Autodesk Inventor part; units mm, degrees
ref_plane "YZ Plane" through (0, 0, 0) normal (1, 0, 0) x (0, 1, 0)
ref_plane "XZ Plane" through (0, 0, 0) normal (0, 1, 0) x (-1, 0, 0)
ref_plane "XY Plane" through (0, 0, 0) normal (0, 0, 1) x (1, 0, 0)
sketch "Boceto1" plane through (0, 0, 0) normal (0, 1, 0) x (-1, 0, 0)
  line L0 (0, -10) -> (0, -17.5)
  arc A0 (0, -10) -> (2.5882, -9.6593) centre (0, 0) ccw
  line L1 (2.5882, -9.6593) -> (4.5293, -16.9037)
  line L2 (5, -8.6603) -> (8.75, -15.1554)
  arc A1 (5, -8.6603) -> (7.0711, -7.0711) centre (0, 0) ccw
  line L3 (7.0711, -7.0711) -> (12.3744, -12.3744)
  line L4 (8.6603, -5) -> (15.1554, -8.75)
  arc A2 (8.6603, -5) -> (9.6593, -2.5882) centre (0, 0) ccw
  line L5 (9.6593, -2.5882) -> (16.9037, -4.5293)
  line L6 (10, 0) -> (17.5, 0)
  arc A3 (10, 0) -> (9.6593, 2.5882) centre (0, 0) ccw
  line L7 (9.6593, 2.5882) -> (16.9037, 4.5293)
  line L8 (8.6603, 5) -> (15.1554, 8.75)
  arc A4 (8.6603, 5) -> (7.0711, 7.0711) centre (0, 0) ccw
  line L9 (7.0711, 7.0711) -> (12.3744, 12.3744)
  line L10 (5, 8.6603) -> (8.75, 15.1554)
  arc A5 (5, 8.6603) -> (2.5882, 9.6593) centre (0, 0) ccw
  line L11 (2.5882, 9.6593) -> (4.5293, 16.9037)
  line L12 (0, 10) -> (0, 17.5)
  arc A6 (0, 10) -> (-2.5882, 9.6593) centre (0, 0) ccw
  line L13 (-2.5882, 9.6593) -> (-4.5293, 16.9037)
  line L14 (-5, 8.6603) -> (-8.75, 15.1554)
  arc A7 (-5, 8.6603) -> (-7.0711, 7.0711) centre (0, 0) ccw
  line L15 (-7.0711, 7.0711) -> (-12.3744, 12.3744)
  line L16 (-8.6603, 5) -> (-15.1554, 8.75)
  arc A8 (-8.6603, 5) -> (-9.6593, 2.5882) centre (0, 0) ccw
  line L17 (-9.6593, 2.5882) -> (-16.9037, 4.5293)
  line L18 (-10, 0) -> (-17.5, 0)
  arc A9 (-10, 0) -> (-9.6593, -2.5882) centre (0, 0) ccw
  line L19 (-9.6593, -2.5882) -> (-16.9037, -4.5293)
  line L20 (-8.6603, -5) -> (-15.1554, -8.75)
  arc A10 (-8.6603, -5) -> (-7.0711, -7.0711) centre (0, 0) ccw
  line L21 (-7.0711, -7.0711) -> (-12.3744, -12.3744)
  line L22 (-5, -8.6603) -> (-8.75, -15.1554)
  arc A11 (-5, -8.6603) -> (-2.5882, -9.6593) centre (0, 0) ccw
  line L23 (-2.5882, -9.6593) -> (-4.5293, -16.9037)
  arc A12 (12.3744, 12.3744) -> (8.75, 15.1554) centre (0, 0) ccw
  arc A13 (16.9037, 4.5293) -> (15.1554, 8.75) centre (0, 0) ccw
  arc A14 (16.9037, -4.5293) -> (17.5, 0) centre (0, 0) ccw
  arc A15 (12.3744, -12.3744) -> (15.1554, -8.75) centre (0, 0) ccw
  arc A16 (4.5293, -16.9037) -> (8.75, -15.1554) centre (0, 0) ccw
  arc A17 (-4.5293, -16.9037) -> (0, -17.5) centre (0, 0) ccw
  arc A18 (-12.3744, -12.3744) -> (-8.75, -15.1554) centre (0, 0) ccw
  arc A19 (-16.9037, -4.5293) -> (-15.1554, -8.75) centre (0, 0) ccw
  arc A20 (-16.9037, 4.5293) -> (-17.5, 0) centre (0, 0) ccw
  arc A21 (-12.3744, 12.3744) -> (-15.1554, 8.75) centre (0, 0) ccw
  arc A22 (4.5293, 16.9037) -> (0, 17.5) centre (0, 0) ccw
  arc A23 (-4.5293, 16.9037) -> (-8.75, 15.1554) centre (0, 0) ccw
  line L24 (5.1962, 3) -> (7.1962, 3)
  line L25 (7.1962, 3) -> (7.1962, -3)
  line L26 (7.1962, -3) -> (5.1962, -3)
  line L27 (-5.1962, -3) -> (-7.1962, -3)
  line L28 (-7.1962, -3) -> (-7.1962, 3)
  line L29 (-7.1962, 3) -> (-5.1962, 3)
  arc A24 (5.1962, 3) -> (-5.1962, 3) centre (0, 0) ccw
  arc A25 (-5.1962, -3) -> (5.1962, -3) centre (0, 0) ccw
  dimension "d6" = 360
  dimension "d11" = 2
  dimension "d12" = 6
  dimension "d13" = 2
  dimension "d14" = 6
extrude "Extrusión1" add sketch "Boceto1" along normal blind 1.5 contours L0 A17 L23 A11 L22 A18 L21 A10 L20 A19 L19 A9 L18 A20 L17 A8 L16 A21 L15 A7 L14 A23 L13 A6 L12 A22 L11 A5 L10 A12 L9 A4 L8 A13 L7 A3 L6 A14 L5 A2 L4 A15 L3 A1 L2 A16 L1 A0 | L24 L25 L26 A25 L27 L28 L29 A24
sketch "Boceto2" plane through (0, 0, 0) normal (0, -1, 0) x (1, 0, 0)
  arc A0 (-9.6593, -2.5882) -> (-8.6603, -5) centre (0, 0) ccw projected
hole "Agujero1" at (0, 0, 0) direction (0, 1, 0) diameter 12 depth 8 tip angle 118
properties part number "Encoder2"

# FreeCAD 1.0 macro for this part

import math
import FreeCAD as App
import Part
import Sketcher

V = App.Vector

doc = App.newDocument("Part")
body = doc.addObject("PartDesign::Body", "Body")

# Sketch on XZ plane
sketch1 = doc.addObject("Sketcher::SketchObject", "Sketch")
body.addObject(sketch1)
sketch1.AttachmentSupport = (doc.XZ_Plane, [""])
sketch1.MapMode = "FlatFace"
sketch1.addGeometry([
    Part.LineSegment(V(0, -17.5, 0), V(0, -10, 0)),  # 0
    Part.ArcOfCircle(Part.Circle(V(0.000164, 0.002501, 0), V(0, 0, 1), 10.002501), math.radians(-104.99719), math.radians(-90.000939)),  # 1
    Part.LineSegment(V(-2.5882, -9.6593, 0), V(-4.5293, -16.9037, 0)),  # 2
    Part.ArcOfCircle(Part.Circle(V(-0.000529, -0.001558, 0), V(0, 0, 1), 17.498348), math.radians(-120.001124), math.radians(-104.999544)),  # 3
    Part.LineSegment(V(-8.75, -15.1554, 0), V(-5, -8.6603, 0)),  # 4
    Part.ArcOfCircle(Part.Circle(V(0, 0, 0), V(0, 0, 1), 10.00004), math.radians(-135), math.radians(-119.999868)),  # 5
    Part.LineSegment(V(-7.0711, -7.0711, 0), V(-12.3744, -12.3744, 0)),  # 6
    Part.ArcOfCircle(Part.Circle(V(-0.00365, -0.003201, 0), V(0, 0, 1), 17.4952), math.radians(-150.003028), math.radians(-134.99896)),  # 7
    Part.LineSegment(V(-15.1554, -8.75, 0), V(-8.6603, -5, 0)),  # 8
    Part.ArcOfCircle(Part.Circle(V(0, 0, 0), V(0, 0, 1), 10.00004), math.radians(-165.000009), math.radians(-150.000132)),  # 9
    Part.LineSegment(V(-9.6593, -2.5882, 0), V(-16.9037, -4.5293, 0)),  # 10
    Part.ArcOfCircle(Part.Circle(V(0, 0, 0), V(0, 0, 1), 17.500044), math.radians(180), math.radians(194.999896)),  # 11
    Part.LineSegment(V(-17.5, 0, 0), V(-10, 0, 0)),  # 12
    Part.ArcOfCircle(Part.Circle(V(0.002501, -0.000164, 0), V(0, 0, 1), 10.002501), math.radians(165.00281), math.radians(179.999061)),  # 13
    Part.LineSegment(V(-9.6593, 2.5882, 0), V(-16.9037, 4.5293, 0)),  # 14
    Part.ArcOfCircle(Part.Circle(V(-0.001558, 0.000529, 0), V(0, 0, 1), 17.498348), math.radians(149.998876), math.radians(165.000456)),  # 15
    Part.LineSegment(V(-15.1554, 8.75, 0), V(-8.6603, 5, 0)),  # 16
    Part.ArcOfCircle(Part.Circle(V(0, 0, 0), V(0, 0, 1), 10.00004), math.radians(135), math.radians(150.000132)),  # 17
    Part.LineSegment(V(-7.0711, 7.0711, 0), V(-12.3744, 12.3744, 0)),  # 18
    Part.ArcOfCircle(Part.Circle(V(-0.003201, 0.00365, 0), V(0, 0, 1), 17.4952), math.radians(119.996972), math.radians(135.00104)),  # 19
    Part.LineSegment(V(-8.75, 15.1554, 0), V(-5, 8.6603, 0)),  # 20
    Part.ArcOfCircle(Part.Circle(V(0, 0, 0), V(0, 0, 1), 10.00004), math.radians(104.999991), math.radians(119.999868)),  # 21
    Part.LineSegment(V(-2.5882, 9.6593, 0), V(-4.5293, 16.9037, 0)),  # 22
    Part.ArcOfCircle(Part.Circle(V(0, 0, 0), V(0, 0, 1), 17.500044), math.radians(90), math.radians(104.999896)),  # 23
    Part.LineSegment(V(0, 17.5, 0), V(0, 10, 0)),  # 24
    Part.ArcOfCircle(Part.Circle(V(-0.000164, -0.002501, 0), V(0, 0, 1), 10.002501), math.radians(75.00281), math.radians(89.999061)),  # 25
    Part.LineSegment(V(2.5882, 9.6593, 0), V(4.5293, 16.9037, 0)),  # 26
    Part.ArcOfCircle(Part.Circle(V(0.000529, 0.001558, 0), V(0, 0, 1), 17.498348), math.radians(59.998876), math.radians(75.000456)),  # 27
    Part.LineSegment(V(8.75, 15.1554, 0), V(5, 8.6603, 0)),  # 28
    Part.ArcOfCircle(Part.Circle(V(0, 0, 0), V(0, 0, 1), 10.00004), math.radians(45), math.radians(60.000132)),  # 29
    Part.LineSegment(V(7.0711, 7.0711, 0), V(12.3744, 12.3744, 0)),  # 30
    Part.ArcOfCircle(Part.Circle(V(0.00365, 0.003201, 0), V(0, 0, 1), 17.4952), math.radians(29.996972), math.radians(45.00104)),  # 31
    Part.LineSegment(V(15.1554, 8.75, 0), V(8.6603, 5, 0)),  # 32
    Part.ArcOfCircle(Part.Circle(V(0, 0, 0), V(0, 0, 1), 10.00004), math.radians(14.999991), math.radians(29.999868)),  # 33
    Part.LineSegment(V(9.6593, 2.5882, 0), V(16.9037, 4.5293, 0)),  # 34
    Part.ArcOfCircle(Part.Circle(V(0, 0, 0), V(0, 0, 1), 17.500044), math.radians(0), math.radians(14.999896)),  # 35
    Part.LineSegment(V(17.5, 0, 0), V(10, 0, 0)),  # 36
    Part.ArcOfCircle(Part.Circle(V(-0.002501, 0.000164, 0), V(0, 0, 1), 10.002501), math.radians(-14.99719), math.radians(-0.000939)),  # 37
    Part.LineSegment(V(9.6593, -2.5882, 0), V(16.9037, -4.5293, 0)),  # 38
    Part.ArcOfCircle(Part.Circle(V(0.001558, -0.000529, 0), V(0, 0, 1), 17.498348), math.radians(-30.001124), math.radians(-14.999544)),  # 39
    Part.LineSegment(V(15.1554, -8.75, 0), V(8.6603, -5, 0)),  # 40
    Part.ArcOfCircle(Part.Circle(V(0, 0, 0), V(0, 0, 1), 10.00004), math.radians(-45), math.radians(-29.999868)),  # 41
    Part.LineSegment(V(7.0711, -7.0711, 0), V(12.3744, -12.3744, 0)),  # 42
    Part.ArcOfCircle(Part.Circle(V(0.003201, -0.00365, 0), V(0, 0, 1), 17.4952), math.radians(-60.003028), math.radians(-44.99896)),  # 43
    Part.LineSegment(V(8.75, -15.1554, 0), V(5, -8.6603, 0)),  # 44
    Part.ArcOfCircle(Part.Circle(V(0, 0, 0), V(0, 0, 1), 10.00004), math.radians(-75.000009), math.radians(-60.000132)),  # 45
    Part.LineSegment(V(2.5882, -9.6593, 0), V(4.5293, -16.9037, 0)),  # 46
    Part.ArcOfCircle(Part.Circle(V(0, 0, 0), V(0, 0, 1), 17.500044), math.radians(-90), math.radians(-75.000104)),  # 47
], False)
sketch1.addConstraint([
    Sketcher.Constraint("Coincident", 0, 2, 1, 2),
    Sketcher.Constraint("Coincident", 1, 1, 2, 1),
    Sketcher.Constraint("Coincident", 2, 2, 3, 2),
    Sketcher.Constraint("Coincident", 3, 1, 4, 1),
    Sketcher.Constraint("Coincident", 4, 2, 5, 2),
    Sketcher.Constraint("Coincident", 5, 1, 6, 1),
    Sketcher.Constraint("Coincident", 6, 2, 7, 2),
    Sketcher.Constraint("Coincident", 7, 1, 8, 1),
    Sketcher.Constraint("Coincident", 8, 2, 9, 2),
    Sketcher.Constraint("Coincident", 9, 1, 10, 1),
    Sketcher.Constraint("Coincident", 10, 2, 11, 2),
    Sketcher.Constraint("Coincident", 11, 1, 12, 1),
    Sketcher.Constraint("Coincident", 12, 2, 13, 2),
    Sketcher.Constraint("Coincident", 13, 1, 14, 1),
    Sketcher.Constraint("Coincident", 14, 2, 15, 2),
    Sketcher.Constraint("Coincident", 15, 1, 16, 1),
    Sketcher.Constraint("Coincident", 16, 2, 17, 2),
    Sketcher.Constraint("Coincident", 17, 1, 18, 1),
    Sketcher.Constraint("Coincident", 18, 2, 19, 2),
    Sketcher.Constraint("Coincident", 19, 1, 20, 1),
    Sketcher.Constraint("Coincident", 20, 2, 21, 2),
    Sketcher.Constraint("Coincident", 21, 1, 22, 1),
    Sketcher.Constraint("Coincident", 22, 2, 23, 2),
    Sketcher.Constraint("Coincident", 23, 1, 24, 1),
    Sketcher.Constraint("Coincident", 24, 2, 25, 2),
    Sketcher.Constraint("Coincident", 25, 1, 26, 1),
    Sketcher.Constraint("Coincident", 26, 2, 27, 2),
    Sketcher.Constraint("Coincident", 27, 1, 28, 1),
    Sketcher.Constraint("Coincident", 28, 2, 29, 2),
    Sketcher.Constraint("Coincident", 29, 1, 30, 1),
    Sketcher.Constraint("Coincident", 30, 2, 31, 2),
    Sketcher.Constraint("Coincident", 31, 1, 32, 1),
    Sketcher.Constraint("Coincident", 32, 2, 33, 2),
    Sketcher.Constraint("Coincident", 33, 1, 34, 1),
    Sketcher.Constraint("Coincident", 34, 2, 35, 2),
    Sketcher.Constraint("Coincident", 35, 1, 36, 1),
    Sketcher.Constraint("Coincident", 36, 2, 37, 2),
    Sketcher.Constraint("Coincident", 37, 1, 38, 1),
    Sketcher.Constraint("Coincident", 38, 2, 39, 2),
    Sketcher.Constraint("Coincident", 39, 1, 40, 1),
    Sketcher.Constraint("Coincident", 40, 2, 41, 2),
    Sketcher.Constraint("Coincident", 41, 1, 42, 1),
    Sketcher.Constraint("Coincident", 42, 2, 43, 2),
    Sketcher.Constraint("Coincident", 43, 1, 44, 1),
    Sketcher.Constraint("Coincident", 44, 2, 45, 2),
    Sketcher.Constraint("Coincident", 45, 1, 46, 1),
    Sketcher.Constraint("Coincident", 46, 2, 47, 2),
    Sketcher.Constraint("Coincident", 47, 1, 0, 1),
    Sketcher.Constraint("Vertical", 0),
    Sketcher.Constraint("Horizontal", 12),
    Sketcher.Constraint("Vertical", 24),
    Sketcher.Constraint("Horizontal", 36),
    Sketcher.Constraint("Coincident", 5, 3, -1, 1),
    Sketcher.Constraint("Coincident", 9, 3, -1, 1),
    Sketcher.Constraint("Coincident", 11, 3, -1, 1),
    Sketcher.Constraint("Coincident", 17, 3, -1, 1),
    Sketcher.Constraint("Coincident", 21, 3, -1, 1),
    Sketcher.Constraint("Coincident", 23, 3, -1, 1),
    Sketcher.Constraint("Coincident", 29, 3, -1, 1),
    Sketcher.Constraint("Coincident", 33, 3, -1, 1),
    Sketcher.Constraint("Coincident", 35, 3, -1, 1),
    Sketcher.Constraint("Coincident", 41, 3, -1, 1),
    Sketcher.Constraint("Coincident", 45, 3, -1, 1),
    Sketcher.Constraint("Coincident", 47, 3, -1, 1),
    Sketcher.Constraint("PointOnObject", 1, 3, -2),
    Sketcher.Constraint("PointOnObject", 13, 3, -1),
    Sketcher.Constraint("PointOnObject", 25, 3, -2),
    Sketcher.Constraint("PointOnObject", 37, 3, -1),
    Sketcher.Constraint("PointOnObject", 0, 2, -2),
    Sketcher.Constraint("PointOnObject", 11, 1, -1),
    Sketcher.Constraint("PointOnObject", 23, 1, -2),
    Sketcher.Constraint("PointOnObject", 35, 1, -1),
    Sketcher.Constraint("Radius", 5, 10.0),
    Sketcher.Constraint("Radius", 9, 10.0),
    Sketcher.Constraint("Radius", 17, 10.0),
    Sketcher.Constraint("Radius", 21, 10.0),
    Sketcher.Constraint("Radius", 29, 10.0),
    Sketcher.Constraint("Radius", 33, 10.0),
    Sketcher.Constraint("Radius", 41, 10.0),
    Sketcher.Constraint("Radius", 45, 10.0),
    Sketcher.Constraint("Radius", 11, 17.5),
    Sketcher.Constraint("Radius", 23, 17.5),
    Sketcher.Constraint("Radius", 35, 17.5),
    Sketcher.Constraint("Radius", 47, 17.5),
    Sketcher.Constraint("DistanceX", 12, 1, 12, 2, 7.5),
    Sketcher.Constraint("DistanceX", 36, 2, 36, 1, 7.5),
    Sketcher.Constraint("DistanceY", 0, 1, 0, 2, 7.5),
    Sketcher.Constraint("DistanceY", 24, 2, 24, 1, 7.5),
    Sketcher.Constraint("DistanceX", 4, 2, -1, 1, 5.0),
    Sketcher.Constraint("DistanceY", 8, 2, -1, 1, 5.0),
    Sketcher.Constraint("DistanceY", -1, 1, 16, 2, 5.0),
    Sketcher.Constraint("DistanceX", 20, 2, -1, 1, 5.0),
    Sketcher.Constraint("DistanceX", -1, 1, 28, 2, 5.0),
    Sketcher.Constraint("DistanceY", -1, 1, 32, 2, 5.0),
    Sketcher.Constraint("DistanceY", 40, 2, -1, 1, 5.0),
    Sketcher.Constraint("DistanceX", -1, 1, 44, 2, 5.0),
    Sketcher.Constraint("Distance", 2, 7.5),
    Sketcher.Constraint("Distance", 4, 7.5),
    Sketcher.Constraint("Distance", 6, 7.5),
    Sketcher.Constraint("Distance", 8, 7.5),
    Sketcher.Constraint("Distance", 14, 7.5),
    Sketcher.Constraint("Distance", 16, 7.5),
    Sketcher.Constraint("Distance", 18, 7.5),
    Sketcher.Constraint("Distance", 20, 7.5),
    Sketcher.Constraint("Distance", 26, 7.5),
    Sketcher.Constraint("Distance", 28, 7.5),
    Sketcher.Constraint("Distance", 30, 7.5),
    Sketcher.Constraint("Distance", 32, 7.5),
    Sketcher.Constraint("Distance", 38, 7.5),
    Sketcher.Constraint("Distance", 40, 7.5),
    Sketcher.Constraint("Distance", 42, 7.5),
    Sketcher.Constraint("Distance", 44, 7.5),
    Sketcher.Constraint("Radius", 1, 10.0025),
    Sketcher.Constraint("Radius", 3, 17.4983),
    Sketcher.Constraint("Radius", 7, 17.4952),
    Sketcher.Constraint("Radius", 13, 10.0025),
    Sketcher.Constraint("Radius", 15, 17.4983),
    Sketcher.Constraint("Radius", 19, 17.4952),
    Sketcher.Constraint("Radius", 25, 10.0025),
    Sketcher.Constraint("Radius", 27, 17.4983),
    Sketcher.Constraint("Radius", 31, 17.4952),
    Sketcher.Constraint("Radius", 37, 10.0025),
    Sketcher.Constraint("Radius", 39, 17.4983),
    Sketcher.Constraint("Radius", 43, 17.4952),
    Sketcher.Constraint("DistanceX", 3, 1, -1, 1, 8.75),
    Sketcher.Constraint("DistanceY", 7, 1, -1, 1, 8.75),
    Sketcher.Constraint("DistanceY", -1, 1, 15, 1, 8.75),
    Sketcher.Constraint("DistanceX", 19, 1, -1, 1, 8.75),
    Sketcher.Constraint("DistanceX", -1, 1, 27, 1, 8.75),
    Sketcher.Constraint("DistanceY", -1, 1, 31, 1, 8.75),
    Sketcher.Constraint("DistanceY", 39, 1, -1, 1, 8.75),
    Sketcher.Constraint("DistanceX", -1, 1, 43, 1, 8.75),
    Sketcher.Constraint("DistanceX", 5, 1, -1, 1, 7.071),
    Sketcher.Constraint("DistanceX", 17, 1, -1, 1, 7.071),
    Sketcher.Constraint("DistanceX", -1, 1, 29, 1, 7.071),
    Sketcher.Constraint("DistanceX", -1, 1, 41, 1, 7.071),
    Sketcher.Constraint("DistanceX", 1, 1, -1, 1, 2.5882),
    Sketcher.Constraint("DistanceX", 2, 2, -1, 1, 4.5293),
    Sketcher.Constraint("DistanceX", 6, 2, -1, 1, 12.3744),
    Sketcher.Constraint("DistanceX", 9, 1, -1, 1, 9.6593),
    Sketcher.Constraint("DistanceX", 10, 2, -1, 1, 16.9037),
    Sketcher.Constraint("DistanceX", 13, 1, -1, 1, 9.6593),
    Sketcher.Constraint("DistanceX", 14, 2, -1, 1, 16.9037),
    Sketcher.Constraint("DistanceX", 18, 2, -1, 1, 12.3744),
    Sketcher.Constraint("DistanceX", 21, 1, -1, 1, 2.5882),
    Sketcher.Constraint("DistanceX", 22, 2, -1, 1, 4.5293),
    Sketcher.Constraint("DistanceX", -1, 1, 25, 1, 2.5882),
    Sketcher.Constraint("DistanceX", -1, 1, 26, 2, 4.5293),
    Sketcher.Constraint("DistanceX", -1, 1, 30, 2, 12.3744),
    Sketcher.Constraint("DistanceX", -1, 1, 33, 1, 9.6593),
    Sketcher.Constraint("DistanceX", -1, 1, 34, 2, 16.9037),
    Sketcher.Constraint("DistanceX", -1, 1, 37, 1, 9.6593),
    Sketcher.Constraint("DistanceX", -1, 1, 38, 2, 16.9037),
    Sketcher.Constraint("DistanceX", -1, 1, 42, 2, 12.3744),
    Sketcher.Constraint("DistanceX", -1, 1, 45, 1, 2.5882),
    Sketcher.Constraint("DistanceX", -1, 1, 46, 2, 4.5293),
])
pad1 = doc.addObject("PartDesign::Pad", "Pad")
body.addObject(pad1)
pad1.Profile = sketch1
pad1.Length = 1.5
pad1.Reversed = True

# Sketch on XZ plane
sketch2 = doc.addObject("Sketcher::SketchObject", "Sketch001")
body.addObject(sketch2)
sketch2.AttachmentSupport = (doc.XZ_Plane, [""])
sketch2.MapMode = "FlatFace"
sketch2.addGeometry(Part.Circle(V(0, 0, 0), V(0, 0, 1), 6), False)
sketch2.addConstraint([
    Sketcher.Constraint("Coincident", 0, 3, -1, 1),
    Sketcher.Constraint("Diameter", 0, 12.0),
])
doc.recompute()
hole = doc.addObject("PartDesign::Hole", "Hole")
body.addObject(hole)
hole.Profile = sketch2
hole.ThreadType = "None"
hole.Diameter = 12
hole.DepthType = "Dimension"
hole.Depth = 8
hole.DrillPoint = "Angled"
hole.DrillPointAngle = 118

doc.recompute()
